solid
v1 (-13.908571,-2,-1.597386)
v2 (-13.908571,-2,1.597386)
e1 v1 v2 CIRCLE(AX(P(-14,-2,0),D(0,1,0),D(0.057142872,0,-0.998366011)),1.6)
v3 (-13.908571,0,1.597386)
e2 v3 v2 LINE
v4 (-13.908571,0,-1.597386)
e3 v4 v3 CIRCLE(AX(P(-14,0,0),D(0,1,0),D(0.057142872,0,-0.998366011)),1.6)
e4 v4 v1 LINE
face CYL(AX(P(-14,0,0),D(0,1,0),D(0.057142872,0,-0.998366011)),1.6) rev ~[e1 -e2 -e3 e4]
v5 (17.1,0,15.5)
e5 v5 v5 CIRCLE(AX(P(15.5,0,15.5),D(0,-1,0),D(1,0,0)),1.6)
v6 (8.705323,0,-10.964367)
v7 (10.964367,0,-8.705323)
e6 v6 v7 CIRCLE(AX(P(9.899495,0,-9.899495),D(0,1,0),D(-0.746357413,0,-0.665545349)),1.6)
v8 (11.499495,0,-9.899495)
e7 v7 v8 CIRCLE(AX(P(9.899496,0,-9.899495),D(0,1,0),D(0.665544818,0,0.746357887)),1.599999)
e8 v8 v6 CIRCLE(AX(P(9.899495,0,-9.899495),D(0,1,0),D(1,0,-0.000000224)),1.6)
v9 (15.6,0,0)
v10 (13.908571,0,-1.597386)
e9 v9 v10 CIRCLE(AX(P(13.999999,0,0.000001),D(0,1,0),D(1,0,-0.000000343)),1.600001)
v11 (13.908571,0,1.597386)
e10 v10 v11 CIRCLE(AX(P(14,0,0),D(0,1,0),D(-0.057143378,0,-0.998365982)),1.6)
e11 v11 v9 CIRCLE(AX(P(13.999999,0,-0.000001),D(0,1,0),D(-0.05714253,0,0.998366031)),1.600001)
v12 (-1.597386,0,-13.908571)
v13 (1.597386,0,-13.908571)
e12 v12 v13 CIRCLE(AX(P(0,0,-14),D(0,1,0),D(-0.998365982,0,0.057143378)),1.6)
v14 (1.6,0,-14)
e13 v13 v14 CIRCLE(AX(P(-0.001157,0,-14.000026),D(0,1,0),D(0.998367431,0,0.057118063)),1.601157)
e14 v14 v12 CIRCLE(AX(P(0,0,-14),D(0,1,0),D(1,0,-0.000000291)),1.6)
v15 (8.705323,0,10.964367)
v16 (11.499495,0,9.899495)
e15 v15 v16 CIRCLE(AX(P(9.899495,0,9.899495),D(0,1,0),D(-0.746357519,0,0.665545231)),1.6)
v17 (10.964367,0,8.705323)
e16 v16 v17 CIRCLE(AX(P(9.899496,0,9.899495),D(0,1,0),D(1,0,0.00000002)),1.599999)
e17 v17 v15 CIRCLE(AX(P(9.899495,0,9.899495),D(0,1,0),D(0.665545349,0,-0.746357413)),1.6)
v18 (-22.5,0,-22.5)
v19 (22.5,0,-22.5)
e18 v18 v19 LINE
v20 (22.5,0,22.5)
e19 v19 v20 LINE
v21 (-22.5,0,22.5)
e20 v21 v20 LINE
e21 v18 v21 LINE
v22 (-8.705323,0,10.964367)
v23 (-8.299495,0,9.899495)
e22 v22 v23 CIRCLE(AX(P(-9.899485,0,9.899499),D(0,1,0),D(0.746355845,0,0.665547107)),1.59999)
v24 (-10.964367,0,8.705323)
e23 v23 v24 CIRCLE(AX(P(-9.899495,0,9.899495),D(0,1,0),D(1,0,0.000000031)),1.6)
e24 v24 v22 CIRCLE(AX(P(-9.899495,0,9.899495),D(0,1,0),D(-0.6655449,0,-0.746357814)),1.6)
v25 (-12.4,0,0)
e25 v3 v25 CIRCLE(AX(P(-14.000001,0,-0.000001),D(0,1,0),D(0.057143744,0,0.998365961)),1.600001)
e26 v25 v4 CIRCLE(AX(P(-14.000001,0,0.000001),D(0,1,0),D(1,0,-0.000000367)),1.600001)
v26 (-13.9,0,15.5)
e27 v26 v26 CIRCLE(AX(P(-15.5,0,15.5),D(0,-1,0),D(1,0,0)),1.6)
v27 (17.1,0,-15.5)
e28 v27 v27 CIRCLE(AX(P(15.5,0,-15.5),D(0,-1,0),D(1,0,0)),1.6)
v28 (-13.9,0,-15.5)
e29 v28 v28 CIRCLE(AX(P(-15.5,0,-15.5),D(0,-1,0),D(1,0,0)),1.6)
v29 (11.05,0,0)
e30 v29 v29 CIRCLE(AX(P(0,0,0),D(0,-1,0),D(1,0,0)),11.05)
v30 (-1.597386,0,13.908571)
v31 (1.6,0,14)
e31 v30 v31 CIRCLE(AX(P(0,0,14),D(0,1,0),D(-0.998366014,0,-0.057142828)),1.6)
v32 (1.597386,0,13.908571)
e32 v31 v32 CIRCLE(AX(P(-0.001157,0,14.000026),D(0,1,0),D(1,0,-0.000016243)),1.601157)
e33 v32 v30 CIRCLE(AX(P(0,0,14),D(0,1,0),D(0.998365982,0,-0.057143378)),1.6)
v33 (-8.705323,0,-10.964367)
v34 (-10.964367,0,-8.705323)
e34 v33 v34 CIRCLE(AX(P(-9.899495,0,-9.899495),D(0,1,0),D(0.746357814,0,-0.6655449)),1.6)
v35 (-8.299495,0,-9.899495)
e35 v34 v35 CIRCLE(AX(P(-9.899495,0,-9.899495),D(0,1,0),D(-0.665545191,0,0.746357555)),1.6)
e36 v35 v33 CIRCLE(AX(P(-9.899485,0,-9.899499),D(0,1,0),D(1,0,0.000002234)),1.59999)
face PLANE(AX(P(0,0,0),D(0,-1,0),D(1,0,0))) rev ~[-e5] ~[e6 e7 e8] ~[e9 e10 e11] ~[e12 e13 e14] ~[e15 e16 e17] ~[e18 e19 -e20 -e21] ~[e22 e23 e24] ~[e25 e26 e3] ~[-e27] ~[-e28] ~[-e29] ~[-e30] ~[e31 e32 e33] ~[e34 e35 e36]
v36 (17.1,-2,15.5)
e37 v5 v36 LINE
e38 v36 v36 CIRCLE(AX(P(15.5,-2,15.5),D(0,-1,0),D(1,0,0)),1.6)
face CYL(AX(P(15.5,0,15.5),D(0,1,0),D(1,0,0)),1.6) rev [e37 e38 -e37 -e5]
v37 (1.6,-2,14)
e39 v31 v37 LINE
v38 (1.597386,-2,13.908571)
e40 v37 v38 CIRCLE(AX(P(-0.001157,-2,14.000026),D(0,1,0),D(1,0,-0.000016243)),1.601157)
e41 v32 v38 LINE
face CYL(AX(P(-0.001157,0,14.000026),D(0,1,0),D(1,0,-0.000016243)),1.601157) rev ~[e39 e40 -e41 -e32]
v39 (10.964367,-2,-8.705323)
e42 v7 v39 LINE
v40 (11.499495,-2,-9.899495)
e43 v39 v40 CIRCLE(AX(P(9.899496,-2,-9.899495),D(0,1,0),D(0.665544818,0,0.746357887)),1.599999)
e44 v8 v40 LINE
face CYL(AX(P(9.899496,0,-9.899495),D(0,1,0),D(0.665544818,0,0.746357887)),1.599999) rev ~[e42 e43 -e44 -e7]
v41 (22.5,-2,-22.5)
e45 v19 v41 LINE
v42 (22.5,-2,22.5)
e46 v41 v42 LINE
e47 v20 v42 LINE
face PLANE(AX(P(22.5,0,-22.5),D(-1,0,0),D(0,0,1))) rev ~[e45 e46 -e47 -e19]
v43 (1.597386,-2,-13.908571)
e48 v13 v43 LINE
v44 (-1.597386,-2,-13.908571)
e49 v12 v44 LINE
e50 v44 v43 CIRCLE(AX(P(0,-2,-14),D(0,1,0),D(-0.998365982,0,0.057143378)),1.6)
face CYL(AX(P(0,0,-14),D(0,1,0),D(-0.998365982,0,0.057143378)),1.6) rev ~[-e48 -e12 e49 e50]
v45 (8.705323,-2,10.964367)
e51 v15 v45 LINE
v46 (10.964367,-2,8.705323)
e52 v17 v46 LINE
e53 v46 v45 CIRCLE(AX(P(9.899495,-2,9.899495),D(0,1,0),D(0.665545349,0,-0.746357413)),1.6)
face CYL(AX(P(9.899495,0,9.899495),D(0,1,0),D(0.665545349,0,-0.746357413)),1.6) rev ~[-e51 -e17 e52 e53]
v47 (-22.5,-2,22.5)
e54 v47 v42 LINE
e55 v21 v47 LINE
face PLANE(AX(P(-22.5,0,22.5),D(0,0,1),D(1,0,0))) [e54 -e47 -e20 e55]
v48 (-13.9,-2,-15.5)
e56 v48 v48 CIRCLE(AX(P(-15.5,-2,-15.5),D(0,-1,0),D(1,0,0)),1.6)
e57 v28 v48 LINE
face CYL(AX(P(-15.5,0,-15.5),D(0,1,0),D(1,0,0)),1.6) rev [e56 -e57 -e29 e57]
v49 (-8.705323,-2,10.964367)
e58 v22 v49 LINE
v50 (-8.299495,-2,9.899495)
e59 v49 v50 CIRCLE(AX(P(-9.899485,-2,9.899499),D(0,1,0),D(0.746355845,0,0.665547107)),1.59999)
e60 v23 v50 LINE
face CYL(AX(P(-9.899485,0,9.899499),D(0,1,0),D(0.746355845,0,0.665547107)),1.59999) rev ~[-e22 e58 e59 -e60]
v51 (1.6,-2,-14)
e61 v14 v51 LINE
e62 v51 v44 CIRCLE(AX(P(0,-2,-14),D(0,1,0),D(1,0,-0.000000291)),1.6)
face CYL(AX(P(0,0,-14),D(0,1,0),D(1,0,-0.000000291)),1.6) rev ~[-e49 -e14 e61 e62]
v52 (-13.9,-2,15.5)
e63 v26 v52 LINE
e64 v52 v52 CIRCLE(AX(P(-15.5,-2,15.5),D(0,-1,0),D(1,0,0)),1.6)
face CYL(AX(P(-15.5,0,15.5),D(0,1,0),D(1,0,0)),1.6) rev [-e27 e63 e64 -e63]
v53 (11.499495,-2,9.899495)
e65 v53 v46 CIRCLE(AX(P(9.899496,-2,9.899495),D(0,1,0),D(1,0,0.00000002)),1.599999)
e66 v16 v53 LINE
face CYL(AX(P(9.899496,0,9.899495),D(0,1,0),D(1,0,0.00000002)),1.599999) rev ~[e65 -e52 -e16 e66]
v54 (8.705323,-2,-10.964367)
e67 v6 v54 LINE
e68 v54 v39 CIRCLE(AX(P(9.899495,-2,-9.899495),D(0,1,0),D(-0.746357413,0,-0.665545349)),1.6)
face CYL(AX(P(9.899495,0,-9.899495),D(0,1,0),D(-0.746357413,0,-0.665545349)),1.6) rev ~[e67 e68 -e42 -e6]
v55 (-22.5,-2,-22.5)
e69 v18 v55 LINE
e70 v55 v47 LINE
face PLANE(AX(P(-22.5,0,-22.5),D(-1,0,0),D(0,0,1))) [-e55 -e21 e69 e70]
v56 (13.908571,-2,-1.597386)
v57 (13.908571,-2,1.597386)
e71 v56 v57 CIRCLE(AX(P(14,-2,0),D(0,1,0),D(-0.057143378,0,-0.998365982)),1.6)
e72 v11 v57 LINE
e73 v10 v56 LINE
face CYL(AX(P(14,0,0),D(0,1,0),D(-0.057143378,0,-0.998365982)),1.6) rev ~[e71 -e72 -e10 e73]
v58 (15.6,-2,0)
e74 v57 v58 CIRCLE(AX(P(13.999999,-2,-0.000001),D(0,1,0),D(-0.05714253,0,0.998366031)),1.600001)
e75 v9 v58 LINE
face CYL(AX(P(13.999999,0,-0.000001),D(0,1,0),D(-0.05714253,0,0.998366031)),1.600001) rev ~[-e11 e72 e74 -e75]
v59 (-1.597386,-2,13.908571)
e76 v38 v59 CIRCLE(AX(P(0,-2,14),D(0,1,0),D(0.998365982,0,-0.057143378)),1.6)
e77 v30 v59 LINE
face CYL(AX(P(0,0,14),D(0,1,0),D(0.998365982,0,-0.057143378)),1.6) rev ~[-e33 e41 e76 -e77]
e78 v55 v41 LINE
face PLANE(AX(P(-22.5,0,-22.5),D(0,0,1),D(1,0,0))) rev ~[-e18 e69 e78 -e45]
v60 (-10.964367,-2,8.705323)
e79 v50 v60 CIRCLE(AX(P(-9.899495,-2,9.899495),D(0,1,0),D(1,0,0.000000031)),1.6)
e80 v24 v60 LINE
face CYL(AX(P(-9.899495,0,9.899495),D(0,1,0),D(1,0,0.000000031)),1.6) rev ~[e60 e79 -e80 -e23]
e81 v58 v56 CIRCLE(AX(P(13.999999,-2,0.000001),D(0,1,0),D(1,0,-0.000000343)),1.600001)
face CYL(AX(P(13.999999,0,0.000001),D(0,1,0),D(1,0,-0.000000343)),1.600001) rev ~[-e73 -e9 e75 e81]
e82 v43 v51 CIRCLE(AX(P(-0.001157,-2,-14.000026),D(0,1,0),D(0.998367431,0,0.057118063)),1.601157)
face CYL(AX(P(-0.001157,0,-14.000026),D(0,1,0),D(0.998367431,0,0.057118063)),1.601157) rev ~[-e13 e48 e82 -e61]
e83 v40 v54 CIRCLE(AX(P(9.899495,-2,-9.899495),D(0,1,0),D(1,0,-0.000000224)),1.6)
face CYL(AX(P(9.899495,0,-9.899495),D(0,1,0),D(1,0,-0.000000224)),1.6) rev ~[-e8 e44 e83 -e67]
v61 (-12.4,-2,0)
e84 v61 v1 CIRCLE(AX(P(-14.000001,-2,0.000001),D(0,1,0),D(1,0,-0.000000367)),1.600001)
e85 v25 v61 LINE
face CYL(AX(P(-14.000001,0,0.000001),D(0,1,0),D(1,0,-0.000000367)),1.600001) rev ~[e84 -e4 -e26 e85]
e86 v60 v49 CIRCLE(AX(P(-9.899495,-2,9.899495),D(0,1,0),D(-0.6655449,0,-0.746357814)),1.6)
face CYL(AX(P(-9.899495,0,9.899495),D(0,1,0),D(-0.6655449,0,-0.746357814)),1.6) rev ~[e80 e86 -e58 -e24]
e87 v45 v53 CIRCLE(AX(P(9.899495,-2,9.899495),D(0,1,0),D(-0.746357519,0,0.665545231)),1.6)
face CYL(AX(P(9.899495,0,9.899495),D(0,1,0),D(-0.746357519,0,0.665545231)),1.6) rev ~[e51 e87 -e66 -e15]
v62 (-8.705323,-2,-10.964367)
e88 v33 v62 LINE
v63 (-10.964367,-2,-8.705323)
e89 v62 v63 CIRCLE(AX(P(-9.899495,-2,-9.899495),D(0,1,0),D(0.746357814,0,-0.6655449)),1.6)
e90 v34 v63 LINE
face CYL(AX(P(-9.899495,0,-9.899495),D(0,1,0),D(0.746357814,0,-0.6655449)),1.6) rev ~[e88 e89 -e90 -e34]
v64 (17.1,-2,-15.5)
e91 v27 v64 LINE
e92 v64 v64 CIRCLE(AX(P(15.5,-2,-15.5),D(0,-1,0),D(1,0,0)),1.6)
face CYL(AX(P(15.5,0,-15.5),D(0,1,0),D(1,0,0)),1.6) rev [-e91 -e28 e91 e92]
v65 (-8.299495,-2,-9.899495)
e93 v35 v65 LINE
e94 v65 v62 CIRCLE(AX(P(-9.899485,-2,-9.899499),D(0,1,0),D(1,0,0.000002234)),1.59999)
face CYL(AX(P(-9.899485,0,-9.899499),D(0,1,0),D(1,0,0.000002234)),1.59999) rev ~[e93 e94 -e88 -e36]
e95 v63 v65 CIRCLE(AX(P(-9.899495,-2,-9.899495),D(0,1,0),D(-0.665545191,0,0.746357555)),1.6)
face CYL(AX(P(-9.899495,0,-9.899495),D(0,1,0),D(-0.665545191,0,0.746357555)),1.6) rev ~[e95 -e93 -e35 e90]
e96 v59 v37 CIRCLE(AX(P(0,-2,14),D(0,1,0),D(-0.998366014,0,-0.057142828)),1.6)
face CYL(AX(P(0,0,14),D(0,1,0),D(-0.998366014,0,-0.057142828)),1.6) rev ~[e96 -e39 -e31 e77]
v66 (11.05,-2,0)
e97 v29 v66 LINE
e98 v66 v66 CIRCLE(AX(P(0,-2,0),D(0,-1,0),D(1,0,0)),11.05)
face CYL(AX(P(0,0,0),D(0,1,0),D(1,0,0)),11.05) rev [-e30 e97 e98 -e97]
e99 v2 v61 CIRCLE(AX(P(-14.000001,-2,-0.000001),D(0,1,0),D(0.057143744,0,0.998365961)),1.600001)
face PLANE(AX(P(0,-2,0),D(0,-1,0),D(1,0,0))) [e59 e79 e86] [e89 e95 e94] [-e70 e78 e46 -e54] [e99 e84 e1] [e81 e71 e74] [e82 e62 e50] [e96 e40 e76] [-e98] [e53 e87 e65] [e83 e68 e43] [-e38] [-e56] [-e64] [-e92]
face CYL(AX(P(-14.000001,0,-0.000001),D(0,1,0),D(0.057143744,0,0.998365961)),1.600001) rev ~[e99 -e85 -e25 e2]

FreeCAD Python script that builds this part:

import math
import FreeCAD as App
import Part
import Sketcher

V = App.Vector


def add_polygon(sketch, points):
    """Adds a closed chain of lines whose ends are joined by coincident constraints."""
    first, n = sketch.GeometryCount, len(points)
    for a, b in zip(points, points[1:] + points[:1]):
        sketch.addGeometry(Part.LineSegment(App.Vector(*a, 0), App.Vector(*b, 0)), False)
    for i in range(n):
        sketch.addConstraint(Sketcher.Constraint("Coincident", first + i, 2, first + (i + 1) % n, 1))

doc = App.newDocument("Part")
params = doc.addObject("Spreadsheet::Sheet", "Params")
for row, (alias, value) in enumerate([
    ("sketch1_diameter", "3.2 mm"),
    ("sketch1_diameter2", "22.1 mm"),
    ("sketch1_width", "45 mm"),
    ("pad1_length", "2 mm"),
], start=1):
    params.set(f"A{row}", alias)
    params.set(f"B{row}", "=" + value)
    params.setAlias(f"B{row}", alias)

body = doc.addObject("PartDesign::Body", "Body")

# Sketch on XZ plane
sketch1 = body.newObject("Sketcher::SketchObject", "Sketch")
sketch1.AttachmentSupport = (doc.getObject("XZ_Plane"), [""])
sketch1.MapMode = "FlatFace"
add_polygon(sketch1, [(-22.5, 22.5), (-22.5, -22.5), (22.5, -22.5), (22.5, 22.5)])  # lines 0-3
sketch1.addGeometry(Part.Circle(V(-15.5, -15.5, 0), V(0, 0, 1), 1.6), False)  # 4
sketch1.addGeometry(Part.ArcOfCircle(Part.Circle(V(-9.899495, -9.899495, 0), V(0, 0, 1), 1.6), math.radians(131.724142), math.radians(318.275858)), False)  # 5
sketch1.addGeometry(Part.ArcOfCircle(Part.Circle(V(-9.899495, -9.899495, 0), V(0, 0, 1), 1.6), math.radians(-0.000002), math.radians(131.724165)), False)  # 6
sketch1.addGeometry(Part.ArcOfCircle(Part.Circle(V(-9.899485, -9.899499, 0), V(0, 0, 1), 1.59999), math.radians(-41.724312), math.radians(0.000128)), False)  # 7
sketch1.addGeometry(Part.ArcOfCircle(Part.Circle(V(-0.001157, -14.000026, 0), V(0, 0, 1), 1.601157), math.radians(0.000931), math.radians(3.274406)), False)  # 8
sketch1.addGeometry(Part.ArcOfCircle(Part.Circle(V(0, -14, 0), V(0, 0, 1), 1.6), math.radians(176.724173), math.radians(359.999983)), False)  # 9
sketch1.addGeometry(Part.ArcOfCircle(Part.Circle(V(0, -14, 0), V(0, 0, 1), 1.6), math.radians(3.275859), math.radians(176.724141)), False)  # 10
sketch1.addGeometry(Part.Circle(V(15.5, -15.5, 0), V(0, 0, 1), 1.6), False)  # 11
sketch1.addGeometry(Part.ArcOfCircle(Part.Circle(V(9.899496, -9.899495, 0), V(0, 0, 1), 1.599999), math.radians(-0.000001), math.radians(48.275864)), False)  # 12
sketch1.addGeometry(Part.ArcOfCircle(Part.Circle(V(9.899495, -9.899495, 0), V(0, 0, 1), 1.6), math.radians(-138.275832), math.radians(-0.000013)), False)  # 13
sketch1.addGeometry(Part.ArcOfCircle(Part.Circle(V(9.899495, -9.899495, 0), V(0, 0, 1), 1.6), math.radians(48.275823), math.radians(221.724177)), False)  # 14
sketch1.addGeometry(Part.ArcOfCircle(Part.Circle(V(-14, 0, 0), V(0, 0, 1), 1.6), math.radians(86.72417), math.radians(273.27583)), False)  # 15
sketch1.addGeometry(Part.ArcOfCircle(Part.Circle(V(-14.000001, -0.000001, 0), V(0, 0, 1), 1.600001), math.radians(0.000021), math.radians(86.72412)), False)  # 16
sketch1.addGeometry(Part.ArcOfCircle(Part.Circle(V(-14.000001, 0.000001, 0), V(0, 0, 1), 1.600001), math.radians(-86.72412), math.radians(-0.000021)), False)  # 17
sketch1.addGeometry(Part.ArcOfCircle(Part.Circle(V(-9.899495, 9.899495, 0), V(0, 0, 1), 1.6), math.radians(41.724142), math.radians(228.275858)), False)  # 18
sketch1.addGeometry(Part.ArcOfCircle(Part.Circle(V(-9.899485, 9.899499, 0), V(0, 0, 1), 1.59999), math.radians(-0.000128), math.radians(41.724312)), False)  # 19
sketch1.addGeometry(Part.ArcOfCircle(Part.Circle(V(-9.899495, 9.899495, 0), V(0, 0, 1), 1.6), math.radians(-131.724165), math.radians(0.000002)), False)  # 20
sketch1.addGeometry(Part.Circle(V(-15.5, 15.5, 0), V(0, 0, 1), 1.6), False)  # 21
sketch1.addGeometry(Part.ArcOfCircle(Part.Circle(V(-0.001157, 14.000026, 0), V(0, 0, 1), 1.601157), math.radians(-3.274406), math.radians(-0.000931)), False)  # 22
sketch1.addGeometry(Part.ArcOfCircle(Part.Circle(V(0, 14, 0), V(0, 0, 1), 1.6), math.radians(-176.724141), math.radians(-3.275859)), False)  # 23
sketch1.addGeometry(Part.ArcOfCircle(Part.Circle(V(0, 14, 0), V(0, 0, 1), 1.6), math.radians(0.000017), math.radians(183.275827)), False)  # 24
sketch1.addGeometry(Part.Circle(V(0, 0, 0), V(0, 0, 1), 11.05), False)  # 25
sketch1.addGeometry(Part.ArcOfCircle(Part.Circle(V(13.999999, -0.000001, 0), V(0, 0, 1), 1.600001), math.radians(0.00002), math.radians(93.27581)), False)  # 26
sketch1.addGeometry(Part.ArcOfCircle(Part.Circle(V(13.999999, 0.000001, 0), V(0, 0, 1), 1.600001), math.radians(-93.27581), math.radians(-0.00002)), False)  # 27
sketch1.addGeometry(Part.ArcOfCircle(Part.Circle(V(14, 0, 0), V(0, 0, 1), 1.6), math.radians(93.275859), math.radians(266.724141)), False)  # 28
sketch1.addGeometry(Part.ArcOfCircle(Part.Circle(V(9.899496, 9.899495, 0), V(0, 0, 1), 1.599999), math.radians(-48.275864), math.radians(0.000001)), False)  # 29
sketch1.addGeometry(Part.ArcOfCircle(Part.Circle(V(9.899495, 9.899495, 0), V(0, 0, 1), 1.6), math.radians(138.275823), math.radians(311.724177)), False)  # 30
sketch1.addGeometry(Part.ArcOfCircle(Part.Circle(V(9.899495, 9.899495, 0), V(0, 0, 1), 1.6), math.radians(0.000013), math.radians(138.275832)), False)  # 31
sketch1.addGeometry(Part.Circle(V(15.5, 15.5, 0), V(0, 0, 1), 1.6), False)  # 32
sketch1.addConstraint(Sketcher.Constraint("Tangent", 5, 1, 6, 2))
sketch1.addConstraint(Sketcher.Constraint("Coincident", 6, 1, 7, 2))
sketch1.addConstraint(Sketcher.Constraint("Coincident", 7, 1, 5, 2))
sketch1.addConstraint(Sketcher.Constraint("Coincident", 8, 1, 9, 2))
sketch1.addConstraint(Sketcher.Constraint("Tangent", 9, 1, 10, 2))
sketch1.addConstraint(Sketcher.Constraint("Coincident", 10, 1, 8, 2))
sketch1.addConstraint(Sketcher.Constraint("Tangent", 12, 1, 13, 2))
sketch1.addConstraint(Sketcher.Constraint("Tangent", 13, 1, 14, 2))
sketch1.addConstraint(Sketcher.Constraint("Tangent", 14, 1, 12, 2))
sketch1.addConstraint(Sketcher.Constraint("Tangent", 15, 1, 16, 2))
sketch1.addConstraint(Sketcher.Constraint("Tangent", 16, 1, 17, 2))
sketch1.addConstraint(Sketcher.Constraint("Tangent", 17, 1, 15, 2))
sketch1.addConstraint(Sketcher.Constraint("Coincident", 18, 1, 19, 2))
sketch1.addConstraint(Sketcher.Constraint("Coincident", 19, 1, 20, 2))
sketch1.addConstraint(Sketcher.Constraint("Tangent", 20, 1, 18, 2))
sketch1.addConstraint(Sketcher.Constraint("Coincident", 22, 1, 23, 2))
sketch1.addConstraint(Sketcher.Constraint("Tangent", 23, 1, 24, 2))
sketch1.addConstraint(Sketcher.Constraint("Coincident", 24, 1, 22, 2))
sketch1.addConstraint(Sketcher.Constraint("Tangent", 26, 1, 27, 2))
sketch1.addConstraint(Sketcher.Constraint("Tangent", 27, 1, 28, 2))
sketch1.addConstraint(Sketcher.Constraint("Tangent", 28, 1, 26, 2))
sketch1.addConstraint(Sketcher.Constraint("Tangent", 29, 1, 30, 2))
sketch1.addConstraint(Sketcher.Constraint("Tangent", 30, 1, 31, 2))
sketch1.addConstraint(Sketcher.Constraint("Tangent", 31, 1, 29, 2))
sketch1.addConstraint(Sketcher.Constraint("Vertical", 0))
sketch1.addConstraint(Sketcher.Constraint("Horizontal", 1))
sketch1.addConstraint(Sketcher.Constraint("Vertical", 2))
sketch1.addConstraint(Sketcher.Constraint("Horizontal", 3))
sketch1.addConstraint(Sketcher.Constraint("Coincident", 25, 3, -1, 1))
sketch1.addConstraint(Sketcher.Constraint("Equal", 4, 5))
sketch1.addConstraint(Sketcher.Constraint("Equal", 5, 6))
sketch1.addConstraint(Sketcher.Constraint("Equal", 6, 9))
sketch1.addConstraint(Sketcher.Constraint("Equal", 9, 10))
sketch1.addConstraint(Sketcher.Constraint("Equal", 10, 11))
sketch1.addConstraint(Sketcher.Constraint("Equal", 11, 12))
sketch1.addConstraint(Sketcher.Constraint("Equal", 14, 15))
sketch1.addConstraint(Sketcher.Constraint("Equal", 17, 18))
sketch1.addConstraint(Sketcher.Constraint("Equal", 7, 19))
sketch1.addConstraint(Sketcher.Constraint("Equal", 18, 20))
sketch1.addConstraint(Sketcher.Constraint("Equal", 20, 21))
sketch1.addConstraint(Sketcher.Constraint("Equal", 8, 22))
sketch1.addConstraint(Sketcher.Constraint("Equal", 21, 23))
sketch1.addConstraint(Sketcher.Constraint("Equal", 23, 24))
sketch1.addConstraint(Sketcher.Constraint("Equal", 24, 26))
sketch1.addConstraint(Sketcher.Constraint("Equal", 28, 29))
sketch1.addConstraint(Sketcher.Constraint("Equal", 31, 32))
sketch1.addConstraint(Sketcher.Constraint("Symmetric", 12, 3, 18, 3, -1, 1))
sketch1.addConstraint(Sketcher.Constraint("Symmetric", 11, 3, 21, 3, -1, 1))
sketch1.addConstraint(Sketcher.Constraint("Symmetric", 9, 3, 23, 3, -1, 1))
sketch1.addConstraint(Sketcher.Constraint("Symmetric", 15, 3, 26, 3, -1, 1))
sketch1.addConstraint(Sketcher.Constraint("Symmetric", 5, 3, 29, 3, -1, 1))
sketch1.addConstraint(Sketcher.Constraint("Symmetric", 4, 3, 32, 3, -1, 1))
sketch1.addConstraint(Sketcher.Constraint("Symmetric", 0, 2, 2, 2, -1, 1))
sketch1.addConstraint(Sketcher.Constraint("Symmetric", 4, 3, 11, 3, -2))
sketch1.addConstraint(Sketcher.Constraint("Symmetric", 5, 3, 12, 3, -2))
sketch1.addConstraint(Sketcher.Constraint("Symmetric", 9, 1, 10, 1, -2))
sketch1.addConstraint(Sketcher.Constraint("Symmetric", 17, 1, 27, 1, -2))
sketch1.addConstraint(Sketcher.Constraint("PointOnObject", 16, 1, -1))
sketch1.addConstraint(Sketcher.Constraint("PointOnObject", 26, 1, -1))
sketch1.addConstraint(Sketcher.Constraint("Horizontal", 14, 3, 6, 1))
sketch1.addConstraint(Sketcher.Constraint("Horizontal", 10, 3, 8, 1))
sketch1.addConstraint(Sketcher.Constraint("Horizontal", 6, 1, 12, 1))
sketch1.addConstraint(Sketcher.Constraint("Horizontal", 7, 1, 13, 1))
sketch1.addConstraint(Sketcher.Constraint("Horizontal", 5, 1, 14, 1))
sketch1.addConstraint(Sketcher.Constraint("Horizontal", 31, 3, 19, 1))
sketch1.addConstraint(Sketcher.Constraint("Horizontal", 22, 1, 23, 1))
sketch1.addConstraint(Sketcher.Constraint("Horizontal", 23, 3, 24, 1))
sketch1.addConstraint(Sketcher.Constraint("Horizontal", 15, 1, 28, 1))
sketch1.addConstraint(Sketcher.Constraint("Horizontal", 20, 1, 29, 1))
sketch1.addConstraint(Sketcher.Constraint("Horizontal", 18, 1, 30, 1))
sketch1.addConstraint(Sketcher.Constraint("Horizontal", 19, 1, 31, 1))
sketch1.addConstraint(Sketcher.Constraint("Vertical", 15, 1, 17, 1))
sketch1.addConstraint(Sketcher.Constraint("Vertical", 7, 1, 18, 1))
sketch1.addConstraint(Sketcher.Constraint("Vertical", 5, 1, 20, 1))
sketch1.addConstraint(Sketcher.Constraint("Vertical", 10, 1, 22, 1))
sketch1.addConstraint(Sketcher.Constraint("Equal", 3, 0))
sketch1.addConstraint(Sketcher.Constraint("Diameter", 4, 3.2))
sketch1.addConstraint(Sketcher.Constraint("Diameter", 25, 22.1))
sketch1.addConstraint(Sketcher.Constraint("DistanceX", 1, 1, 1, 2, 45.0))
sketch1.addConstraint(Sketcher.Constraint("DistanceY", 9, 3, -1, 1, 14.0))
sketch1.addConstraint(Sketcher.Constraint("DistanceX", 15, 3, -1, 1, 14.0))
sketch1.addConstraint(Sketcher.Constraint("DistanceX", 0, 2, 4, 3, 7.0))
sketch1.addConstraint(Sketcher.Constraint("DistanceY", 0, 2, 4, 3, 7.0))
sketch1.addConstraint(Sketcher.Constraint("Radius", 7, 1.59999))
sketch1.addConstraint(Sketcher.Constraint("Radius", 8, 1.601157))
sketch1.addConstraint(Sketcher.Constraint("DistanceY", 7, 3, -1, 1, 9.899499))
sketch1.addConstraint(Sketcher.Constraint("DistanceY", 9, 1, -1, 1, 13.908571))
sketch1.addConstraint(Sketcher.Constraint("DistanceX", 15, 1, -1, 1, 13.908571))
sketch1.addConstraint(Sketcher.Constraint("DistanceX", 7, 3, 12, 3, 19.79898))
sketch1.addConstraint(Sketcher.Constraint("DistanceX", 5, 1, 5, 3, 1.064872))
sketch1.addConstraint(Sketcher.Constraint("DistanceX", 7, 1, 6, 1, 0.405828))
sketch1.setExpression("Constraints[80]", "Params.sketch1_diameter")
sketch1.setExpression("Constraints[81]", "Params.sketch1_diameter2")
sketch1.setExpression("Constraints[82]", "Params.sketch1_width")
pad1 = body.newObject("PartDesign::Pad", "Pad")
pad1.Profile = sketch1
pad1.setExpression("Length", "Params.pad1_length")

doc.recompute()
